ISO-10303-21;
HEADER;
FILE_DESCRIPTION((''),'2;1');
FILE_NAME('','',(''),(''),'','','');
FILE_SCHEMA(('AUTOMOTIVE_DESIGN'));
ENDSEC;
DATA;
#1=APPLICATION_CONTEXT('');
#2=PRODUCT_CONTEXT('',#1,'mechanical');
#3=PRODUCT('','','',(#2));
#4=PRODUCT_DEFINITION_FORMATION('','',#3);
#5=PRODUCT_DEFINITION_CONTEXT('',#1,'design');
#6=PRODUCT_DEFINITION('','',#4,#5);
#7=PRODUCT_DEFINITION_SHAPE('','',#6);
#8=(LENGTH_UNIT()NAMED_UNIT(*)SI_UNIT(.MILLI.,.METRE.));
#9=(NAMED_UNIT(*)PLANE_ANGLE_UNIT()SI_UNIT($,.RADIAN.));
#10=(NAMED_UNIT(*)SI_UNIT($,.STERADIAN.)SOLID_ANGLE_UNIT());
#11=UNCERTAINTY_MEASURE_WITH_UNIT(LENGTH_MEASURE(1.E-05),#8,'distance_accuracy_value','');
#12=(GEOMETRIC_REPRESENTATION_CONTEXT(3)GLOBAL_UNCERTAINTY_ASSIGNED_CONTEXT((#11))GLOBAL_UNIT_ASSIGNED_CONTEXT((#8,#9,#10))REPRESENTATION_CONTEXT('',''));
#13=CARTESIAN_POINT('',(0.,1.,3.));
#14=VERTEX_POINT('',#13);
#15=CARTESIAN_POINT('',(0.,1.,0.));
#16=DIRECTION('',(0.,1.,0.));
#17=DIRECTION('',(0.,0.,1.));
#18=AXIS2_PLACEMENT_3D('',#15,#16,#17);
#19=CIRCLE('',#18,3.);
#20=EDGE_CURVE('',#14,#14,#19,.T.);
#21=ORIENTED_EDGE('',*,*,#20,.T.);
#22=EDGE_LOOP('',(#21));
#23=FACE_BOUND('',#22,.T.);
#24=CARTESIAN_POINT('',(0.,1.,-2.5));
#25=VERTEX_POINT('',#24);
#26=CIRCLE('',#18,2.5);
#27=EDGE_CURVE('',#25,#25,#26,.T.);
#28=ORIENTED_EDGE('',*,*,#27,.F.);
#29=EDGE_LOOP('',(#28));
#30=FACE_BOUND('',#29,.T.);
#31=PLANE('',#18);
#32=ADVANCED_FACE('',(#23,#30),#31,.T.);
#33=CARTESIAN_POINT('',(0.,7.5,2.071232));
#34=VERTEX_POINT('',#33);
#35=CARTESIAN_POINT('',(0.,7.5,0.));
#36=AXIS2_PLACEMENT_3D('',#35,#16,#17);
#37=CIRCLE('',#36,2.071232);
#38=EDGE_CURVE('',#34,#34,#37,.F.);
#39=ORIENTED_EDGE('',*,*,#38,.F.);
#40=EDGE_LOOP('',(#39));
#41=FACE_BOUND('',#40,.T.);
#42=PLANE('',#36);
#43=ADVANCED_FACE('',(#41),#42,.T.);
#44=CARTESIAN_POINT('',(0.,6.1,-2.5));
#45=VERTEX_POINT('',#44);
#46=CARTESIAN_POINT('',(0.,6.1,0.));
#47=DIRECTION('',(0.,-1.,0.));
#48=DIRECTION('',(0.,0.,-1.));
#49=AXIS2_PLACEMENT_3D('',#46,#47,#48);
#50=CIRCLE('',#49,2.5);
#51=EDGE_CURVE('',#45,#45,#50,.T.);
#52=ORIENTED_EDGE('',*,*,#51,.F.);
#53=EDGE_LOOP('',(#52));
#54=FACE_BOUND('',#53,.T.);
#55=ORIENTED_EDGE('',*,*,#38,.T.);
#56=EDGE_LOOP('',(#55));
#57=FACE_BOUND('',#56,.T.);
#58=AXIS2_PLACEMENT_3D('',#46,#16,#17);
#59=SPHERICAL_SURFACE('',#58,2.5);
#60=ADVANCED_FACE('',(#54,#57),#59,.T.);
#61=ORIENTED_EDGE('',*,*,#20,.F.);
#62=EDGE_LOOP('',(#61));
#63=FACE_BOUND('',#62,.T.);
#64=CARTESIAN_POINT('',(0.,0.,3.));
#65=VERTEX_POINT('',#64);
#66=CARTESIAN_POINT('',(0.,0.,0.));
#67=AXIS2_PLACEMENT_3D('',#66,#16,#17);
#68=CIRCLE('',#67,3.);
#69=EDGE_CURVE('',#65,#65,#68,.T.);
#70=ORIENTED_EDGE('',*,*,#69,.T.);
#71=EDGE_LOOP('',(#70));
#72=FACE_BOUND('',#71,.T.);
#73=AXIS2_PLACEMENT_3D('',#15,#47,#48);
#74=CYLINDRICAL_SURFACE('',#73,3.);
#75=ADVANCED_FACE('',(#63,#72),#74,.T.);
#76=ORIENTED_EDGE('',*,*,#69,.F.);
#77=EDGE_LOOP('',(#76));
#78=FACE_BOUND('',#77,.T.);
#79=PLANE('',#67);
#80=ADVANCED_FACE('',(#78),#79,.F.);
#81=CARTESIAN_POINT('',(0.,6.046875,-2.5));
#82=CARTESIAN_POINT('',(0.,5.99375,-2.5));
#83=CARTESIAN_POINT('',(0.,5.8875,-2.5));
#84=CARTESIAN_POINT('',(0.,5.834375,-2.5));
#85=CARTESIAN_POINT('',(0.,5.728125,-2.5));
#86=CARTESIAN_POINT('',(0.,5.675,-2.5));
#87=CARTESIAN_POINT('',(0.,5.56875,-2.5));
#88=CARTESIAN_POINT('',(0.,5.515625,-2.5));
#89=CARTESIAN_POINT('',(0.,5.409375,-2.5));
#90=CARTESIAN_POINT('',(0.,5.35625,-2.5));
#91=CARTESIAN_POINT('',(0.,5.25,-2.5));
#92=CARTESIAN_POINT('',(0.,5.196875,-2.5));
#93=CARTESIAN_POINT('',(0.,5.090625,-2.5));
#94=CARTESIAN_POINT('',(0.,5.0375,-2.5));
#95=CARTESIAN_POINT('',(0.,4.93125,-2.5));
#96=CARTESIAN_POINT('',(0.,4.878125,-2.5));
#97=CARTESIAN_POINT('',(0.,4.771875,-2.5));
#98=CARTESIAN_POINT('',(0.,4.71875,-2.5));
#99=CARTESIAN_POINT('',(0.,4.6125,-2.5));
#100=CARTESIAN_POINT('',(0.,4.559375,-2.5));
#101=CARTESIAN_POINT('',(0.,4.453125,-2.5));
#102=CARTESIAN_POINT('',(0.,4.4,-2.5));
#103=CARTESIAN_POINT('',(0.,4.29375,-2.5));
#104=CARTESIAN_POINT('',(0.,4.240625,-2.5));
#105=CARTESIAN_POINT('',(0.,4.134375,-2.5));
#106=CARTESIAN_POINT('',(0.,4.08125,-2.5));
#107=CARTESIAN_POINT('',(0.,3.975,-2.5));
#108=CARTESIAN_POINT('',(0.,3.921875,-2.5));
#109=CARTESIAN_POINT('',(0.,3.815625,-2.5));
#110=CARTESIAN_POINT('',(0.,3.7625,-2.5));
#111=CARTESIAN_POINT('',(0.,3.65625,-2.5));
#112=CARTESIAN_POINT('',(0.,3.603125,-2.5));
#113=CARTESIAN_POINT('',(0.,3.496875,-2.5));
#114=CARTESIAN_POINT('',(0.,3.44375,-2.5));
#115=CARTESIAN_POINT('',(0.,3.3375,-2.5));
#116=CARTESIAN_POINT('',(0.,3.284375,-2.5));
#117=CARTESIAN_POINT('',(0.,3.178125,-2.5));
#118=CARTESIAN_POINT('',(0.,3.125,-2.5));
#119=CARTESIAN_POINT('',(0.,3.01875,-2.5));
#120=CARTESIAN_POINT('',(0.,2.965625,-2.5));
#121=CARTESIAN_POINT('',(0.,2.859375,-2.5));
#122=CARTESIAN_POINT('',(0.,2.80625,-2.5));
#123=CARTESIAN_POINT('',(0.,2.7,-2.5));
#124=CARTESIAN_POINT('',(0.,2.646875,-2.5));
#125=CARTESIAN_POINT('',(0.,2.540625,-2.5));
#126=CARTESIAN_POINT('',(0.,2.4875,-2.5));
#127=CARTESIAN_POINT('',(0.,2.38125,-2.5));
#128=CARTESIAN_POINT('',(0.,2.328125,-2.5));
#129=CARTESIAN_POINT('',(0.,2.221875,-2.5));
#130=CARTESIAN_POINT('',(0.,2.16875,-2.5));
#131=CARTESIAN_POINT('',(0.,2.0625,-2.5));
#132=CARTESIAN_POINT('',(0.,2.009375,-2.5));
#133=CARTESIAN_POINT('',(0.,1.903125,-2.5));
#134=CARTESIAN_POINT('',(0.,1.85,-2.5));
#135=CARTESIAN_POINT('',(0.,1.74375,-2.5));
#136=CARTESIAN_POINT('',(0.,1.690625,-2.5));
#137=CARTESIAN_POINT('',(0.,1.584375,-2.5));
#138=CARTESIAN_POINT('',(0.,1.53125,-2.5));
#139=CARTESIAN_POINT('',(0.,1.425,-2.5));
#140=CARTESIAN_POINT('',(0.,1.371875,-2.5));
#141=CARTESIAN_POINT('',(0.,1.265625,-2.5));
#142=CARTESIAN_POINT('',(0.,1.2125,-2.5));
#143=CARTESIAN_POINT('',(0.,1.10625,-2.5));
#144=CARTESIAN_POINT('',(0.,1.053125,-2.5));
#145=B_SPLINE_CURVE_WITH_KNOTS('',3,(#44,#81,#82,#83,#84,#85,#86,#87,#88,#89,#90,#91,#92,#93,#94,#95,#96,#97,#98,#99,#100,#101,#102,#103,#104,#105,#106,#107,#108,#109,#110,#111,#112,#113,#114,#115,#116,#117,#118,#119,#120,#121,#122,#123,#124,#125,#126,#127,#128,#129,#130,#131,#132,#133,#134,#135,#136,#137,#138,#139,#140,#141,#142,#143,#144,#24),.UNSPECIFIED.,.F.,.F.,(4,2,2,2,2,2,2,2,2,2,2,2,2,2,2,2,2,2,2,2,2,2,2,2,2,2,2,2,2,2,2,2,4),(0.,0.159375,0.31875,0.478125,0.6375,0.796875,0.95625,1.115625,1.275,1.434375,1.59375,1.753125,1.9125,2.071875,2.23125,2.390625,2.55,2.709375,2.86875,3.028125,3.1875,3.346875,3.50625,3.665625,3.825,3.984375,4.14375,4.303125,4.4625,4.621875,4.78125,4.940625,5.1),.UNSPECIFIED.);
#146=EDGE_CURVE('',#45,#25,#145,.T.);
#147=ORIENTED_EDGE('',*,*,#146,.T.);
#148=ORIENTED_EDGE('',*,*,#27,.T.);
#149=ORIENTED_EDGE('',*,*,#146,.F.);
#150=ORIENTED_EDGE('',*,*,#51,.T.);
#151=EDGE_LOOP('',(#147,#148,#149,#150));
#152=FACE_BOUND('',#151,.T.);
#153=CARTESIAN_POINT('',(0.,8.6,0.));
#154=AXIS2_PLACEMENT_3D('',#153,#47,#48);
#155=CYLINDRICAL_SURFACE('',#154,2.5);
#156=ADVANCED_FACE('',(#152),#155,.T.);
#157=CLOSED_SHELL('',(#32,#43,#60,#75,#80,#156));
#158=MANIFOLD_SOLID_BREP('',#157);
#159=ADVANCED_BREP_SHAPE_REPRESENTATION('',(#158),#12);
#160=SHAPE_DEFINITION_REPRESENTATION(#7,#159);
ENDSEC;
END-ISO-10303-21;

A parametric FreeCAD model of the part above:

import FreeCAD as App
import Part
import Sketcher

V = App.Vector


def edges_at(feature, points):
    """Names of the edges that pass closest to the given points."""
    edges = feature.Shape.Edges
    near = lambda p: min(range(len(edges)), key=lambda i: edges[i].distToShape(Part.Vertex(*p))[0])
    return sorted({f"Edge{near(p) + 1}" for p in points})

doc = App.newDocument("Part")
body = doc.addObject("PartDesign::Body", "Body")

sketch1 = body.newObject("Sketcher::SketchObject", "Sketch")
sketch1.AttachmentSupport = (doc.getObject("XZ_Plane"), [""])
sketch1.MapMode = "FlatFace"
sketch1.addGeometry(Part.Circle(V(0, 0, 0), V(0, 0, 1), 3), False)
sketch1.addConstraint(Sketcher.Constraint("Coincident", 0, 3, -1, 1))
sketch1.addConstraint(Sketcher.Constraint("Diameter", 0, 6.0))
pad1 = body.newObject("PartDesign::Pad", "Pad")
pad1.Profile = sketch1
pad1.Length = 1
pad1.Reversed = True

sketch2 = body.newObject("Sketcher::SketchObject", "Sketch001")
sketch2.AttachmentSupport = (doc.getObject("XZ_Plane"), [""])
sketch2.MapMode = "FlatFace"
sketch2.AttachmentOffset = App.Placement(V(0, 0, -1), App.Rotation())
sketch2.addGeometry(Part.Circle(V(0, 0, 0), V(0, 0, 1), 2.5), False)
sketch2.addConstraint(Sketcher.Constraint("Coincident", 0, 3, -1, 1))
sketch2.addConstraint(Sketcher.Constraint("Diameter", 0, 5.0))
pad2 = body.newObject("PartDesign::Pad", "Pad001")
pad2.Profile = sketch2
pad2.Length = 7.6
pad2.Reversed = True
doc.recompute()

fillet = body.newObject("PartDesign::Fillet", "Fillet")
fillet.Base = (pad2, edges_at(pad2, [(0, 8.6, 2.5)]))
fillet.Radius = 2.5

sketch3 = body.newObject("Sketcher::SketchObject", "Sketch002")
sketch3.AttachmentSupport = (doc.getObject("XZ_Plane"), [""])
sketch3.MapMode = "FlatFace"
sketch3.AttachmentOffset = App.Placement(V(0, 0, -8.6), App.Rotation())
sketch3.addGeometry(Part.Circle(V(0, 0, 0), V(0, 0, 1), 2.6), False)
sketch3.addConstraint(Sketcher.Constraint("Coincident", 0, 3, -1, 1))
sketch3.addConstraint(Sketcher.Constraint("Diameter", 0, 5.113325))
pocket1 = body.newObject("PartDesign::Pocket", "Pocket")
pocket1.Profile = sketch3
pocket1.Length = 1.1
pocket1.Reversed = True

doc.recompute()
